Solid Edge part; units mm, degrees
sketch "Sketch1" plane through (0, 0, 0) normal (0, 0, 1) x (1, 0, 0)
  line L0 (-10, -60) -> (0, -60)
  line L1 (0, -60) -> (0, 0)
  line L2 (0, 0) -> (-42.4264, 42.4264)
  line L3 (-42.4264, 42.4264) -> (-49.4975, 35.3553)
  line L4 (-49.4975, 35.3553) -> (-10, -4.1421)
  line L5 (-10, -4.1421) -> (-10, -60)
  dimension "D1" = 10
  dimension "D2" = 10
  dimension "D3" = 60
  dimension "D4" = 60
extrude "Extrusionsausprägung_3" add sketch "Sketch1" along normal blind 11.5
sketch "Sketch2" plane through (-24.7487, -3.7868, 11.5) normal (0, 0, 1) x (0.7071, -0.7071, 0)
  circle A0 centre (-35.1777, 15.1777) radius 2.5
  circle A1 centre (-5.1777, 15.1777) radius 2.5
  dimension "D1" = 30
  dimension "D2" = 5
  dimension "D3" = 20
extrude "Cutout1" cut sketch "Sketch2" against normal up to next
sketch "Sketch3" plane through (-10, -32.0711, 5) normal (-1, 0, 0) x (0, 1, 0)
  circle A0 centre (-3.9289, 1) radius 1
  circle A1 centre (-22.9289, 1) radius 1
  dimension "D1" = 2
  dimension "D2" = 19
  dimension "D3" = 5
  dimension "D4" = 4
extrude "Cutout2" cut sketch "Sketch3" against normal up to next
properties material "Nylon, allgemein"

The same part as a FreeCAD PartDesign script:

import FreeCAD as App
import Part
import Sketcher
Q = App.Units.Quantity


def add_polygon(sketch, points):
    """Adds a closed chain of lines whose ends are joined by coincident constraints."""
    first, n = sketch.GeometryCount, len(points)
    for a, b in zip(points, points[1:] + points[:1]):
        sketch.addGeometry(Part.LineSegment(App.Vector(*a, 0), App.Vector(*b, 0)), False)
    for i in range(n):
        sketch.addConstraint(Sketcher.Constraint("Coincident", first + i, 2, first + (i + 1) % n, 1))

doc = App.newDocument("Part")
body = doc.addObject("PartDesign::Body", "Body")

sketch1 = doc.addObject("Sketcher::SketchObject", "Sketch")
body.addObject(sketch1)
sketch1.AttachmentSupport = (doc.XY_Plane, [""])
sketch1.MapMode = "FlatFace"
add_polygon(sketch1, [(-10, -4.1421), (-10, -60), (0, -60), (0, 0), (-42.4264, 42.4264), (-49.4975, 35.3553)])
sketch1.addConstraint(Sketcher.Constraint("Vertical", 0))
sketch1.addConstraint(Sketcher.Constraint("Horizontal", 1))
sketch1.addConstraint(Sketcher.Constraint("Vertical", 2))
sketch1.addConstraint(Sketcher.Constraint("Coincident", 2, 2, -1, 1))
sketch1.addConstraint(Sketcher.Constraint("Perpendicular", 3, 4))
sketch1.addConstraint(Sketcher.Constraint("Perpendicular", 4, 5))
sketch1.addConstraint(Sketcher.Constraint("DistanceX", 1, 1, 1, 2, 10.0))
sketch1.addConstraint(Sketcher.Constraint("Distance", 4, 10.0))
sketch1.addConstraint(Sketcher.Constraint("DistanceY", 2, 1, 2, 2, 60.0))
sketch1.addConstraint(Sketcher.Constraint("Angle", 3, Q("135 deg")))
sketch1.addConstraint(Sketcher.Constraint("Distance", 3, 60.0))
pad1 = doc.addObject("PartDesign::Pad", "Pad")
body.addObject(pad1)
pad1.Profile = sketch1
pad1.Length = 11.5

sketch2 = doc.addObject("Sketcher::SketchObject", "Sketch001")
body.addObject(sketch2)
sketch2.AttachmentSupport = (doc.XY_Plane, [""])
sketch2.MapMode = "FlatFace"
sketch2.AttachmentOffset = App.Placement(App.Vector(0, 0, 11.5), App.Rotation())
sketch2.addGeometry(Part.Circle(App.Vector(-38.890836, 31.819845, 0), App.Vector(0, 0, 1), 2.5), False)
sketch2.addGeometry(Part.Circle(App.Vector(-17.677632, 10.606641, 0), App.Vector(0, 0, 1), 2.5), False)
sketch2.addConstraint(Sketcher.Constraint("Equal", 0, 1))
sketch2.addConstraint(Sketcher.Constraint("Diameter", 0, 5.0))
sketch2.addConstraint(Sketcher.Constraint("DistanceX", 0, 3, -1, 1, 38.8908))
sketch2.addConstraint(Sketcher.Constraint("DistanceY", -1, 1, 0, 3, 31.8198))
sketch2.addConstraint(Sketcher.Constraint("DistanceX", 1, 3, -1, 1, 17.6776))
sketch2.addConstraint(Sketcher.Constraint("DistanceY", -1, 1, 1, 3, 10.6066))
pocket1 = doc.addObject("PartDesign::Pocket", "Pocket")
body.addObject(pocket1)
pocket1.Profile = sketch2
pocket1.Type = "UpToFirst"

sketch3 = doc.addObject("Sketcher::SketchObject", "Sketch002")
body.addObject(sketch3)
sketch3.AttachmentSupport = (doc.YZ_Plane, [""])
sketch3.MapMode = "FlatFace"
sketch3.AttachmentOffset = App.Placement(App.Vector(0, 0, -10), App.Rotation())
sketch3.addGeometry(Part.Circle(App.Vector(-36, 4, 0), App.Vector(0, 0, 1), 1), False)
sketch3.addGeometry(Part.Circle(App.Vector(-55, 4, 0), App.Vector(0, 0, 1), 1), False)
sketch3.addConstraint(Sketcher.Constraint("Equal", 0, 1))
sketch3.addConstraint(Sketcher.Constraint("Horizontal", 0, 3, 1, 3))
sketch3.addConstraint(Sketcher.Constraint("Diameter", 0, 2.0))
sketch3.addConstraint(Sketcher.Constraint("DistanceX", 0, 3, -1, 1, 36.0))
sketch3.addConstraint(Sketcher.Constraint("DistanceY", -1, 1, 0, 3, 4.0))
sketch3.addConstraint(Sketcher.Constraint("DistanceX", 1, 3, -1, 1, 55.0))
pocket2 = doc.addObject("PartDesign::Pocket", "Pocket001")
body.addObject(pocket2)
pocket2.Profile = sketch3
pocket2.Type = "UpToFirst"
pocket2.Reversed = True

doc.recompute()
